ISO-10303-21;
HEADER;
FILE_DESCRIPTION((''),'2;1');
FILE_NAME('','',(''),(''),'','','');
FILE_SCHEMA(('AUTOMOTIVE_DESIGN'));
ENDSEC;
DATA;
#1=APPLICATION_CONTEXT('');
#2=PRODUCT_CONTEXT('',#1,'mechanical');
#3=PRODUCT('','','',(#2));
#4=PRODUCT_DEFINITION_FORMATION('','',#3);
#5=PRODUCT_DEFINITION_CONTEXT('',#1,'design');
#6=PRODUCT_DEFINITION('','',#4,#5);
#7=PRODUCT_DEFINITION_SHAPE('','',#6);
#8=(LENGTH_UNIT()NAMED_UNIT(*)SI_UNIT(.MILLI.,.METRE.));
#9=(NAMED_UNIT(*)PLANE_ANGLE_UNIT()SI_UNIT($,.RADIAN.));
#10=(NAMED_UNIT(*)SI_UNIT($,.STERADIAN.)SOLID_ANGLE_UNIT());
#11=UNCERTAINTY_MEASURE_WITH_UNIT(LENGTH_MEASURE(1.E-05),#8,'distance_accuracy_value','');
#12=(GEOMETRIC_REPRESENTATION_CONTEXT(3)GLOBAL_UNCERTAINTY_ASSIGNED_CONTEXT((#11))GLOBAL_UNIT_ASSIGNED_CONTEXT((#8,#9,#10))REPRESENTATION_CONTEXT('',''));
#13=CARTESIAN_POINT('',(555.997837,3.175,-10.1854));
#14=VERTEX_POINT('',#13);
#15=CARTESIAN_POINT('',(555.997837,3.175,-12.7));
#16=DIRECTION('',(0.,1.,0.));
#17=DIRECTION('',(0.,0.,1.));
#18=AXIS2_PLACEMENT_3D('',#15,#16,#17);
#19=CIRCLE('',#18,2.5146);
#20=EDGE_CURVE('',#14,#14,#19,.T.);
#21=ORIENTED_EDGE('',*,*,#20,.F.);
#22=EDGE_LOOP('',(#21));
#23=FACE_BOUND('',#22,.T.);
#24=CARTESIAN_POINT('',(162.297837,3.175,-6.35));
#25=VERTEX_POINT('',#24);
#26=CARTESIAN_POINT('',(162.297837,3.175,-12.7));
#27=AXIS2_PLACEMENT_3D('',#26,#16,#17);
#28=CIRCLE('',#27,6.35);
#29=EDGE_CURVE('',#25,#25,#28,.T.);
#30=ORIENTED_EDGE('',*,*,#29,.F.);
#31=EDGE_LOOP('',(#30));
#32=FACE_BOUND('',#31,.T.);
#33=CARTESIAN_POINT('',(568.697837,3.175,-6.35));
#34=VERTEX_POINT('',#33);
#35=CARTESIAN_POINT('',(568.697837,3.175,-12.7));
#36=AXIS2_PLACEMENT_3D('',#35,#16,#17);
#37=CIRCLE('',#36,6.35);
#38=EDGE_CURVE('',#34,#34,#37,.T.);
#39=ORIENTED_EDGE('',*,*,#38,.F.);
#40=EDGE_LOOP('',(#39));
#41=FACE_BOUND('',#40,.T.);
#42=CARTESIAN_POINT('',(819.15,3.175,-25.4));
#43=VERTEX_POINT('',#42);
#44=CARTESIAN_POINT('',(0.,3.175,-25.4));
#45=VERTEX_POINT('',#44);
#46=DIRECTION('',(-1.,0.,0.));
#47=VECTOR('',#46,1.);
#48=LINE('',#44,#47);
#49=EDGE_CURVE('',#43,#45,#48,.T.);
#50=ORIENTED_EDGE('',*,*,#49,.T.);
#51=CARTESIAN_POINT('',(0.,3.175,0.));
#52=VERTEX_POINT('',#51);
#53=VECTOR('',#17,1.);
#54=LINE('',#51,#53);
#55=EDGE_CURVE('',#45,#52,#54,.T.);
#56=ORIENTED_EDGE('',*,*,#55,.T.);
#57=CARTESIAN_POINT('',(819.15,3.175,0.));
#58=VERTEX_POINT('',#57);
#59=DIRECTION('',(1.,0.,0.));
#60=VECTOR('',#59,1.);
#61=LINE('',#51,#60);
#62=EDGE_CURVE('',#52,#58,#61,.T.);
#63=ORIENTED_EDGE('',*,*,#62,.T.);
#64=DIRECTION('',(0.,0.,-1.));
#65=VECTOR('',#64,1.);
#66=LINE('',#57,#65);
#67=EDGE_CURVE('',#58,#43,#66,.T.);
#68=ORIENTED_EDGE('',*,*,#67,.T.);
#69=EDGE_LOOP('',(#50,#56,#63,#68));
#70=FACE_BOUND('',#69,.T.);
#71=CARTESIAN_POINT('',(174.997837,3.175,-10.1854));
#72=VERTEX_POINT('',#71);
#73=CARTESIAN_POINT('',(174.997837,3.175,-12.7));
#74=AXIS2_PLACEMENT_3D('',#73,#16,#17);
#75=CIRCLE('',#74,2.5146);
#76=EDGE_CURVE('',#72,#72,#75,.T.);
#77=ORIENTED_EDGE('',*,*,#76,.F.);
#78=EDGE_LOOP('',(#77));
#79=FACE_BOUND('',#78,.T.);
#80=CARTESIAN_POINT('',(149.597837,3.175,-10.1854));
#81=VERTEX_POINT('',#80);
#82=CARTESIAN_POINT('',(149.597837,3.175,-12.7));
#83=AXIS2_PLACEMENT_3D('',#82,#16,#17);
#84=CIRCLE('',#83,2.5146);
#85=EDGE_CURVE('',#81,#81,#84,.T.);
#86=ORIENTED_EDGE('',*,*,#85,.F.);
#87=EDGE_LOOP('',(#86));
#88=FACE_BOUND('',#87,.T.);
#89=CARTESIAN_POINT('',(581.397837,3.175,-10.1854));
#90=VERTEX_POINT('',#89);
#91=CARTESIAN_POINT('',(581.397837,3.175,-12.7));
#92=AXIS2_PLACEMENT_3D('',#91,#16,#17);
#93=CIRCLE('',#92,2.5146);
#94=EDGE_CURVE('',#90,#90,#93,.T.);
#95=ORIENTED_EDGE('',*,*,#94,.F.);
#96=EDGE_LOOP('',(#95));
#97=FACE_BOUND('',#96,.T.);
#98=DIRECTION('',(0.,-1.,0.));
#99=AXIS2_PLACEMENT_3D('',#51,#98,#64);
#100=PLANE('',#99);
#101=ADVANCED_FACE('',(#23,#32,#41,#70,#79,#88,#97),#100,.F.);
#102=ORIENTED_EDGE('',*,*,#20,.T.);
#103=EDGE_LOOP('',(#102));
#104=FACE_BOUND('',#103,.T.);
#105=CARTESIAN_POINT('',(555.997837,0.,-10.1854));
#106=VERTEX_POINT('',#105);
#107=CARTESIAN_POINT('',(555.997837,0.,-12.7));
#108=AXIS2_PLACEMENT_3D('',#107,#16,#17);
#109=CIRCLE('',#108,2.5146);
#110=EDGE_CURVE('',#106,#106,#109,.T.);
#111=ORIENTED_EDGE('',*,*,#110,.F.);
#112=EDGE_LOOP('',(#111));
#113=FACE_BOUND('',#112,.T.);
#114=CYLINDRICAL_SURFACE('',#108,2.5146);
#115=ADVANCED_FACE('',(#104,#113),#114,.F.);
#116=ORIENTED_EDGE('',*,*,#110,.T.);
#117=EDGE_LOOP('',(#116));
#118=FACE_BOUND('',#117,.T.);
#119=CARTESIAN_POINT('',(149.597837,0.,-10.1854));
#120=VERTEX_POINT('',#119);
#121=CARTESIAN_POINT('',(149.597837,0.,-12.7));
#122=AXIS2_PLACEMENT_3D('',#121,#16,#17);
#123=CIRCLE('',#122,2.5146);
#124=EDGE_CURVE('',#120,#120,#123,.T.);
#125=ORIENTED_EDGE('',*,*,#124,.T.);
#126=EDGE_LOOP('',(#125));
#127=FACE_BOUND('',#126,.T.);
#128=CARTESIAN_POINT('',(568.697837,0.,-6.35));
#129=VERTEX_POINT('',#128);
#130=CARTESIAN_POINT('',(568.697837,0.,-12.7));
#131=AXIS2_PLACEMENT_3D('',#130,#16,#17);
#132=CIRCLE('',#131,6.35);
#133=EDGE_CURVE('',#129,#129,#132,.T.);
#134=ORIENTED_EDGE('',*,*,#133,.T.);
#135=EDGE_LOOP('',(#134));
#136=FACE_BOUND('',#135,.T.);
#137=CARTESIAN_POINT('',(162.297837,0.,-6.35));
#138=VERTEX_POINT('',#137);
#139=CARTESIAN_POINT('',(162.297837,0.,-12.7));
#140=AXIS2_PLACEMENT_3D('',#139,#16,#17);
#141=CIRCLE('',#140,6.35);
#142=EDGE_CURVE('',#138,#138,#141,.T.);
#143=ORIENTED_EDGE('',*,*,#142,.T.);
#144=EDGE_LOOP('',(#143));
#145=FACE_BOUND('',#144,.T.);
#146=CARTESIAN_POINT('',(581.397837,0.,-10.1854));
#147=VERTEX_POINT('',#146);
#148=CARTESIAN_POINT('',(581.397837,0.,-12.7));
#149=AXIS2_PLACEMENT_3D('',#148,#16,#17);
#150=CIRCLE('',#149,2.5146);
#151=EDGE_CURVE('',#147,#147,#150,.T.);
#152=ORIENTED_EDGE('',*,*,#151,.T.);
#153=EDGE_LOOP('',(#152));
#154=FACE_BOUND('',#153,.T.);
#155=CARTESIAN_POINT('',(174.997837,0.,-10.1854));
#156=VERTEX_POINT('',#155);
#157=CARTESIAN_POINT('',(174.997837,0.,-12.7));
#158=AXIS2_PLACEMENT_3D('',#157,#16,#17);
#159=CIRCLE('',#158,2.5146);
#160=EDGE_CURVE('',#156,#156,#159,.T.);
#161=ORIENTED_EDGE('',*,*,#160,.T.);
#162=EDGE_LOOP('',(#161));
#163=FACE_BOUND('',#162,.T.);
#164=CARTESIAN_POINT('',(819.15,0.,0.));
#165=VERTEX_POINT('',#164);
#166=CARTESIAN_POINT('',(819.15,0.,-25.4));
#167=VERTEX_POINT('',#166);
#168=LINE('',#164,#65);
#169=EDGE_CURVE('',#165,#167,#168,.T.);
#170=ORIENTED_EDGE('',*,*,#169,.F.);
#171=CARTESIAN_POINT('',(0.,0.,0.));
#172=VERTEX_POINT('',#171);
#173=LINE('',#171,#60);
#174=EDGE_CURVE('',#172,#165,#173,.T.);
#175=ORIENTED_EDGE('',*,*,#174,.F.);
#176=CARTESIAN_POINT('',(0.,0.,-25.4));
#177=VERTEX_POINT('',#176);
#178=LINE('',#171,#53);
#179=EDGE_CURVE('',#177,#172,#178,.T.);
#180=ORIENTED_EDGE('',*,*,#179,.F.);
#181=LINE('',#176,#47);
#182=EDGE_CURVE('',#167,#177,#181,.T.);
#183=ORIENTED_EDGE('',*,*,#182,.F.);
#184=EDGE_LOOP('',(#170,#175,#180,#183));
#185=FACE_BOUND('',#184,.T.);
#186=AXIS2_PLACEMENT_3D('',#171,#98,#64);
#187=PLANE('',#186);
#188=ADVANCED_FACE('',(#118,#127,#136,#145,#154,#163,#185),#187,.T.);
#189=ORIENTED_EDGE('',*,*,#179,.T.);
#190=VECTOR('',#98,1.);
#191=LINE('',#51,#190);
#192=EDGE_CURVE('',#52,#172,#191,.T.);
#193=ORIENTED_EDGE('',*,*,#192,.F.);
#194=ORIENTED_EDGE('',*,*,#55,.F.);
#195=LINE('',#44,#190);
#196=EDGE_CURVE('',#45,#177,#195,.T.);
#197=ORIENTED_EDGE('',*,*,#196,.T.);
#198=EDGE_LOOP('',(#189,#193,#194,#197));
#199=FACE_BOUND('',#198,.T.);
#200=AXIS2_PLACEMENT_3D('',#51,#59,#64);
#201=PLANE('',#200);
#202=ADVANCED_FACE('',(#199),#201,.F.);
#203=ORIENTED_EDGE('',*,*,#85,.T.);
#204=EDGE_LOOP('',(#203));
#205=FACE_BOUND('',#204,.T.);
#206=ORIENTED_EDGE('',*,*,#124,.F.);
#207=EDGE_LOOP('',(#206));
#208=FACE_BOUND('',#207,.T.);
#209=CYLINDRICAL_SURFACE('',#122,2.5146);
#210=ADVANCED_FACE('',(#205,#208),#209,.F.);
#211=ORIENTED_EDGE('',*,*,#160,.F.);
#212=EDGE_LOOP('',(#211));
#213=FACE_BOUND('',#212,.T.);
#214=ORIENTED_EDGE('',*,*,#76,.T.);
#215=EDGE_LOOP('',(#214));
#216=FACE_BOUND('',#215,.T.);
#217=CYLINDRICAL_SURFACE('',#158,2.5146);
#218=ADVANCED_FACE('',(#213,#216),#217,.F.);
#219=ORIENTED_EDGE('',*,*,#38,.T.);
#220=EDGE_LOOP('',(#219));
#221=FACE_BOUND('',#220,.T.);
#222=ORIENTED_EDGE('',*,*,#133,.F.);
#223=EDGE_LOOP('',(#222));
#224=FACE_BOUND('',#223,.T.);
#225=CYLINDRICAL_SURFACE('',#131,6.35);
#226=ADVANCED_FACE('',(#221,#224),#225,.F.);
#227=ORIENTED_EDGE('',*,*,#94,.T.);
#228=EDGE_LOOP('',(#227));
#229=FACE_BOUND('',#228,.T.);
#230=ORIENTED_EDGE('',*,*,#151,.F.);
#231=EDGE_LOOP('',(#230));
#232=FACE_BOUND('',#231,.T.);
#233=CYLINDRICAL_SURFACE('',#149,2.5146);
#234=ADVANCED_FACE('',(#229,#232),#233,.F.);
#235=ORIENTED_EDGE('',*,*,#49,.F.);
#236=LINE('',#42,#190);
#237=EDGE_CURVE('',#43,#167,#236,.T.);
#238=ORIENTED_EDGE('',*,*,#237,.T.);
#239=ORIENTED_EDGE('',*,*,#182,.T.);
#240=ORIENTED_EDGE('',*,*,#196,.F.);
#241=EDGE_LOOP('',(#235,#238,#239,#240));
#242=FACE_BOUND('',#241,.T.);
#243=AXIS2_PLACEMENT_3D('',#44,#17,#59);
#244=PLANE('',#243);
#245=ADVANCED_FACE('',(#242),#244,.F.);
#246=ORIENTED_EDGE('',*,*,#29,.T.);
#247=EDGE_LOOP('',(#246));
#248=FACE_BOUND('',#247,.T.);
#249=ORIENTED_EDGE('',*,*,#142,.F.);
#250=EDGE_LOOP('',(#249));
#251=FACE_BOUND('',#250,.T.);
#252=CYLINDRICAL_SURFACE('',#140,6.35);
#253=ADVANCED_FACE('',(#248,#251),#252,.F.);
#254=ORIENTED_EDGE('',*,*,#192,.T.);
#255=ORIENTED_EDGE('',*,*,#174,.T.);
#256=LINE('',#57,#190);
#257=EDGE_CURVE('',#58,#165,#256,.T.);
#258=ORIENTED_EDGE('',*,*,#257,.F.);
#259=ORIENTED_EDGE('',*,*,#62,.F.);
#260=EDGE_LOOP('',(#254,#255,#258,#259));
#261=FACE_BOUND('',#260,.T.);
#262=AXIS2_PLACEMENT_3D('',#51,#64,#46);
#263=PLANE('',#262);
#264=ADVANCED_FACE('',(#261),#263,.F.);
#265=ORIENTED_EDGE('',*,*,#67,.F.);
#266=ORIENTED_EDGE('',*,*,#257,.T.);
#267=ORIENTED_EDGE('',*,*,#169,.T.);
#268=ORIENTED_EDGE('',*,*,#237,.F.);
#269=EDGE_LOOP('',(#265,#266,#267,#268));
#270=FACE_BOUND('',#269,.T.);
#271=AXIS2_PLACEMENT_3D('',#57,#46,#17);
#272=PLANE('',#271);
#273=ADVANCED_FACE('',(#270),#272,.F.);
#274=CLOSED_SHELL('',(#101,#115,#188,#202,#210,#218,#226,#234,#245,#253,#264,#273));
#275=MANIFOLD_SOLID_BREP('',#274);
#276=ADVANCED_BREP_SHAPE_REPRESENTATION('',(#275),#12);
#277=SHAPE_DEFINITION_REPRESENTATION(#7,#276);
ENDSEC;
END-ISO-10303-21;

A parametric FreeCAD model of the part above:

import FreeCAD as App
import Part
import Sketcher

V = App.Vector
Q = App.Units.Quantity

doc = App.newDocument("Part")
body = doc.addObject("PartDesign::Body", "Body")

# Sketch on XZ plane
sketch1 = body.newObject("Sketcher::SketchObject", "Sketch")
sketch1.AttachmentSupport = (doc.getObject("XZ_Plane"), [""])
sketch1.MapMode = "FlatFace"
sketch1.addGeometry([
    Part.LineSegment(V(0, -25, 0), V(0, 0, 0)),
    Part.LineSegment(V(0, 0, 0), V(819, 0, 0)),
    Part.LineSegment(V(819, 0, 0), V(819, -25, 0)),
    Part.LineSegment(V(819, -25, 0), V(0, -25, 0)),
], False)
sketch1.addConstraint([
    Sketcher.Constraint("Coincident", 0, 2, 1, 1),
    Sketcher.Constraint("Coincident", 1, 2, 2, 1),
    Sketcher.Constraint("Coincident", 2, 2, 3, 1),
    Sketcher.Constraint("Coincident", 3, 2, 0, 1),
    Sketcher.Constraint("Vertical", 0),
    Sketcher.Constraint("Horizontal", 1),
    Sketcher.Constraint("Vertical", 2),
    Sketcher.Constraint("Horizontal", 3),
    Sketcher.Constraint("Coincident", 0, 2, -1, 1),
    Sketcher.Constraint("DistanceY", 0, 1, 0, 2, Q("1 in")),
    Sketcher.Constraint("DistanceX", 1, 1, 1, 2, Q("32.25 in")),
])
pad1 = body.newObject("PartDesign::Pad", "Pad")
pad1.Profile = sketch1
pad1.Length = Q("0.125 in")
pad1.Reversed = True

# Sketch on XZ plane
sketch2 = body.newObject("Sketcher::SketchObject", "Sketch001")
sketch2.AttachmentSupport = (doc.getObject("XZ_Plane"), [""])
sketch2.MapMode = "FlatFace"
sketch2.AttachmentOffset = App.Placement(V(0, 0, -0.125 * 25.4), App.Rotation())
sketch2.addGeometry([
    Part.Circle(V(149.6, -12.7, 0), V(0, 0, 1), 2.5),  # 0
    Part.Circle(V(175, -12.7, 0), V(0, 0, 1), 2.5),  # 1
    Part.Circle(V(556, -12.7, 0), V(0, 0, 1), 2.5),  # 2
    Part.Circle(V(581.4, -12.7, 0), V(0, 0, 1), 2.5),  # 3
    Part.Circle(V(162.3, -12.7, 0), V(0, 0, 1), 6.3),  # 4
    Part.Circle(V(568.7, -12.7, 0), V(0, 0, 1), 6.3),  # 5
], False)
sketch2.addConstraint([
    Sketcher.Constraint("Equal", 0, 1),
    Sketcher.Constraint("Equal", 1, 2),
    Sketcher.Constraint("Equal", 2, 3),
    Sketcher.Constraint("Equal", 4, 5),
    Sketcher.Constraint("Horizontal", 0, 3, 1, 3),
    Sketcher.Constraint("Horizontal", 1, 3, 2, 3),
    Sketcher.Constraint("Horizontal", 2, 3, 3, 3),
    Sketcher.Constraint("Horizontal", 3, 3, 4, 3),
    Sketcher.Constraint("Horizontal", 4, 3, 5, 3),
    Sketcher.Constraint("Diameter", 4, Q("0.5 in")),
    Sketcher.Constraint("Diameter", 0, Q("0.198 in")),
    Sketcher.Constraint("DistanceX", 0, 3, 1, 3, Q("1 in")),
    Sketcher.Constraint("DistanceX", 1, 3, 2, 3, Q("15 in")),
    Sketcher.Constraint("DistanceX", 2, 3, 3, 3, Q("1 in")),
    Sketcher.Constraint("DistanceX", 4, 3, 5, 3, Q("16 in")),
    Sketcher.Constraint("DistanceY", 0, 3, -1, 1, Q("0.5 in")),
    Sketcher.Constraint("DistanceX", 0, 3, 4, 3, Q("0.5 in")),
    Sketcher.Constraint("DistanceX", -1, 1, 0, 3, 149.597837),
])
pocket1 = body.newObject("PartDesign::Pocket", "Pocket")
pocket1.Profile = sketch2
pocket1.Type = "ThroughAll"
pocket1.Reversed = True

doc.recompute()
